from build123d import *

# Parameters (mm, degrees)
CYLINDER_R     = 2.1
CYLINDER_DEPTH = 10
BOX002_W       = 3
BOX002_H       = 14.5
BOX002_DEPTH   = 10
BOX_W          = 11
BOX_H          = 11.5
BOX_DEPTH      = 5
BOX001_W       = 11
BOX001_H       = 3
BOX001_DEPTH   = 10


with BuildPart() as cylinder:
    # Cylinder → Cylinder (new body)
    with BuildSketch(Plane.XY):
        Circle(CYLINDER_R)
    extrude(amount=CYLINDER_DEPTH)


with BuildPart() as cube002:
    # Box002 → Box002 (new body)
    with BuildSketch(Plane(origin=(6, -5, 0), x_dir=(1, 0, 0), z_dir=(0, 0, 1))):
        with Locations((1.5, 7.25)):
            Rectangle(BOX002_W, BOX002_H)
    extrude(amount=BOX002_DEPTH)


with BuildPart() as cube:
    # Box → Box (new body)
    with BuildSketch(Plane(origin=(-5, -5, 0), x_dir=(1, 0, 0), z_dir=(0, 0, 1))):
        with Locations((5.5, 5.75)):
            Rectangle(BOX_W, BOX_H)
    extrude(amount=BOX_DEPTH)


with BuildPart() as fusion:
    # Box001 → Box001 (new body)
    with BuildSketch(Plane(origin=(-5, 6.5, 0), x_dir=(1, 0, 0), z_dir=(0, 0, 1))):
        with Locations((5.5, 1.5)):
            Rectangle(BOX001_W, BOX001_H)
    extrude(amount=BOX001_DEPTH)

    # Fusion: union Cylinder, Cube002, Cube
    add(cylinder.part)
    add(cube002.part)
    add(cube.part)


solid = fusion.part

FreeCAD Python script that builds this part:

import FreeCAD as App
import Part
import Sketcher
Q = App.Units.Quantity


def add_polygon(sketch, points):
    """Adds a closed chain of lines whose ends are joined by coincident constraints."""
    first, n = sketch.GeometryCount, len(points)
    for a, b in zip(points, points[1:] + points[:1]):
        sketch.addGeometry(Part.LineSegment(App.Vector(*a, 0), App.Vector(*b, 0)), False)
    for i in range(n):
        sketch.addConstraint(Sketcher.Constraint("Coincident", first + i, 2, first + (i + 1) % n, 1))

doc = App.newDocument("Part")
body = doc.addObject("PartDesign::Body", "Body")

sketch1 = body.newObject("Sketcher::SketchObject", "Sketch")
sketch1.AttachmentSupport = (doc.getObject("XY_Plane"), [""])
sketch1.MapMode = "FlatFace"
sketch1.addGeometry(Part.Circle(App.Vector(0, 0, 0), App.Vector(0, 0, 1), 2.1), False)
sketch1.addConstraint(Sketcher.Constraint("Coincident", 0, 3, -1, 1))
sketch1.addConstraint(Sketcher.Constraint("Diameter", 0, Q("4.2 mm")))
pad1 = body.newObject("PartDesign::Pad", "Pad")
pad1.Profile = sketch1
pad1.Length = 10
body2 = doc.addObject("PartDesign::Body", "Body001")

sketch2 = body2.newObject("Sketcher::SketchObject", "Sketch001")
sketch2.AttachmentSupport = (doc.getObject("XY_Plane001"), [""])
sketch2.MapMode = "FlatFace"
add_polygon(sketch2, [(6, 9.5), (6, -5), (9, -5), (9, 9.5)])
sketch2.addConstraint(Sketcher.Constraint("Vertical", 0))
sketch2.addConstraint(Sketcher.Constraint("Horizontal", 1))
sketch2.addConstraint(Sketcher.Constraint("Vertical", 2))
sketch2.addConstraint(Sketcher.Constraint("Horizontal", 3))
sketch2.addConstraint(Sketcher.Constraint("DistanceX", 1, 1, 1, 2, Q("3 mm")))
sketch2.addConstraint(Sketcher.Constraint("DistanceY", 0, 2, 0, 1, Q("14.5 mm")))
sketch2.addConstraint(Sketcher.Constraint("DistanceX", -1, 1, 0, 2, Q("6 mm")))
sketch2.addConstraint(Sketcher.Constraint("DistanceY", 0, 2, -1, 1, Q("5 mm")))
pad2 = body2.newObject("PartDesign::Pad", "Pad001")
pad2.Profile = sketch2
pad2.Length = 10
body3 = doc.addObject("PartDesign::Body", "Body002")

sketch3 = body3.newObject("Sketcher::SketchObject", "Sketch002")
sketch3.AttachmentSupport = (doc.getObject("XY_Plane002"), [""])
sketch3.MapMode = "FlatFace"
add_polygon(sketch3, [(-5, 6), (-5, -5), (6, -5), (6, 6)])
sketch3.addConstraint(Sketcher.Constraint("Vertical", 0))
sketch3.addConstraint(Sketcher.Constraint("Horizontal", 1))
sketch3.addConstraint(Sketcher.Constraint("Vertical", 2))
sketch3.addConstraint(Sketcher.Constraint("Horizontal", 3))
sketch3.addConstraint(Sketcher.Constraint("DistanceX", 1, 1, 1, 2, Q("11 mm")))
sketch3.addConstraint(Sketcher.Constraint("DistanceY", 0, 2, 0, 1, Q("11.5 mm")))
sketch3.addConstraint(Sketcher.Constraint("DistanceX", 0, 2, -1, 1, Q("5 mm")))
sketch3.addConstraint(Sketcher.Constraint("DistanceY", 0, 2, -1, 1, Q("5 mm")))
pad3 = body3.newObject("PartDesign::Pad", "Pad002")
pad3.Profile = sketch3
pad3.Length = 5
body4 = doc.addObject("PartDesign::Body", "Body003")
body4.AllowCompound = True

sketch4 = body4.newObject("Sketcher::SketchObject", "Sketch003")
sketch4.AttachmentSupport = (doc.getObject("XY_Plane003"), [""])
sketch4.MapMode = "FlatFace"
add_polygon(sketch4, [(-5, 9.5), (-5, 6.5), (6, 6.5), (6, 9.5)])
sketch4.addConstraint(Sketcher.Constraint("Vertical", 0))
sketch4.addConstraint(Sketcher.Constraint("Horizontal", 1))
sketch4.addConstraint(Sketcher.Constraint("Vertical", 2))
sketch4.addConstraint(Sketcher.Constraint("Horizontal", 3))
sketch4.addConstraint(Sketcher.Constraint("DistanceX", 1, 1, 1, 2, Q("11 mm")))
sketch4.addConstraint(Sketcher.Constraint("DistanceY", 0, 2, 0, 1, Q("3 mm")))
sketch4.addConstraint(Sketcher.Constraint("DistanceX", 0, 2, -1, 1, Q("5 mm")))
sketch4.addConstraint(Sketcher.Constraint("DistanceY", -1, 1, 0, 2, Q("6.5 mm")))
pad4 = body4.newObject("PartDesign::Pad", "Pad003")
pad4.Profile = sketch4
pad4.Length = 10
doc.recompute()

boolean = body4.newObject("PartDesign::Boolean", "Boolean")
boolean.Type = "Fuse"
boolean.addObjects([body])
doc.recompute()

boolean2 = body4.newObject("PartDesign::Boolean", "Boolean001")
boolean2.Type = "Fuse"
boolean2.addObjects([body2])
doc.recompute()

boolean3 = body4.newObject("PartDesign::Boolean", "Boolean002")
boolean3.Type = "Fuse"
boolean3.addObjects([body3])

doc.recompute()
